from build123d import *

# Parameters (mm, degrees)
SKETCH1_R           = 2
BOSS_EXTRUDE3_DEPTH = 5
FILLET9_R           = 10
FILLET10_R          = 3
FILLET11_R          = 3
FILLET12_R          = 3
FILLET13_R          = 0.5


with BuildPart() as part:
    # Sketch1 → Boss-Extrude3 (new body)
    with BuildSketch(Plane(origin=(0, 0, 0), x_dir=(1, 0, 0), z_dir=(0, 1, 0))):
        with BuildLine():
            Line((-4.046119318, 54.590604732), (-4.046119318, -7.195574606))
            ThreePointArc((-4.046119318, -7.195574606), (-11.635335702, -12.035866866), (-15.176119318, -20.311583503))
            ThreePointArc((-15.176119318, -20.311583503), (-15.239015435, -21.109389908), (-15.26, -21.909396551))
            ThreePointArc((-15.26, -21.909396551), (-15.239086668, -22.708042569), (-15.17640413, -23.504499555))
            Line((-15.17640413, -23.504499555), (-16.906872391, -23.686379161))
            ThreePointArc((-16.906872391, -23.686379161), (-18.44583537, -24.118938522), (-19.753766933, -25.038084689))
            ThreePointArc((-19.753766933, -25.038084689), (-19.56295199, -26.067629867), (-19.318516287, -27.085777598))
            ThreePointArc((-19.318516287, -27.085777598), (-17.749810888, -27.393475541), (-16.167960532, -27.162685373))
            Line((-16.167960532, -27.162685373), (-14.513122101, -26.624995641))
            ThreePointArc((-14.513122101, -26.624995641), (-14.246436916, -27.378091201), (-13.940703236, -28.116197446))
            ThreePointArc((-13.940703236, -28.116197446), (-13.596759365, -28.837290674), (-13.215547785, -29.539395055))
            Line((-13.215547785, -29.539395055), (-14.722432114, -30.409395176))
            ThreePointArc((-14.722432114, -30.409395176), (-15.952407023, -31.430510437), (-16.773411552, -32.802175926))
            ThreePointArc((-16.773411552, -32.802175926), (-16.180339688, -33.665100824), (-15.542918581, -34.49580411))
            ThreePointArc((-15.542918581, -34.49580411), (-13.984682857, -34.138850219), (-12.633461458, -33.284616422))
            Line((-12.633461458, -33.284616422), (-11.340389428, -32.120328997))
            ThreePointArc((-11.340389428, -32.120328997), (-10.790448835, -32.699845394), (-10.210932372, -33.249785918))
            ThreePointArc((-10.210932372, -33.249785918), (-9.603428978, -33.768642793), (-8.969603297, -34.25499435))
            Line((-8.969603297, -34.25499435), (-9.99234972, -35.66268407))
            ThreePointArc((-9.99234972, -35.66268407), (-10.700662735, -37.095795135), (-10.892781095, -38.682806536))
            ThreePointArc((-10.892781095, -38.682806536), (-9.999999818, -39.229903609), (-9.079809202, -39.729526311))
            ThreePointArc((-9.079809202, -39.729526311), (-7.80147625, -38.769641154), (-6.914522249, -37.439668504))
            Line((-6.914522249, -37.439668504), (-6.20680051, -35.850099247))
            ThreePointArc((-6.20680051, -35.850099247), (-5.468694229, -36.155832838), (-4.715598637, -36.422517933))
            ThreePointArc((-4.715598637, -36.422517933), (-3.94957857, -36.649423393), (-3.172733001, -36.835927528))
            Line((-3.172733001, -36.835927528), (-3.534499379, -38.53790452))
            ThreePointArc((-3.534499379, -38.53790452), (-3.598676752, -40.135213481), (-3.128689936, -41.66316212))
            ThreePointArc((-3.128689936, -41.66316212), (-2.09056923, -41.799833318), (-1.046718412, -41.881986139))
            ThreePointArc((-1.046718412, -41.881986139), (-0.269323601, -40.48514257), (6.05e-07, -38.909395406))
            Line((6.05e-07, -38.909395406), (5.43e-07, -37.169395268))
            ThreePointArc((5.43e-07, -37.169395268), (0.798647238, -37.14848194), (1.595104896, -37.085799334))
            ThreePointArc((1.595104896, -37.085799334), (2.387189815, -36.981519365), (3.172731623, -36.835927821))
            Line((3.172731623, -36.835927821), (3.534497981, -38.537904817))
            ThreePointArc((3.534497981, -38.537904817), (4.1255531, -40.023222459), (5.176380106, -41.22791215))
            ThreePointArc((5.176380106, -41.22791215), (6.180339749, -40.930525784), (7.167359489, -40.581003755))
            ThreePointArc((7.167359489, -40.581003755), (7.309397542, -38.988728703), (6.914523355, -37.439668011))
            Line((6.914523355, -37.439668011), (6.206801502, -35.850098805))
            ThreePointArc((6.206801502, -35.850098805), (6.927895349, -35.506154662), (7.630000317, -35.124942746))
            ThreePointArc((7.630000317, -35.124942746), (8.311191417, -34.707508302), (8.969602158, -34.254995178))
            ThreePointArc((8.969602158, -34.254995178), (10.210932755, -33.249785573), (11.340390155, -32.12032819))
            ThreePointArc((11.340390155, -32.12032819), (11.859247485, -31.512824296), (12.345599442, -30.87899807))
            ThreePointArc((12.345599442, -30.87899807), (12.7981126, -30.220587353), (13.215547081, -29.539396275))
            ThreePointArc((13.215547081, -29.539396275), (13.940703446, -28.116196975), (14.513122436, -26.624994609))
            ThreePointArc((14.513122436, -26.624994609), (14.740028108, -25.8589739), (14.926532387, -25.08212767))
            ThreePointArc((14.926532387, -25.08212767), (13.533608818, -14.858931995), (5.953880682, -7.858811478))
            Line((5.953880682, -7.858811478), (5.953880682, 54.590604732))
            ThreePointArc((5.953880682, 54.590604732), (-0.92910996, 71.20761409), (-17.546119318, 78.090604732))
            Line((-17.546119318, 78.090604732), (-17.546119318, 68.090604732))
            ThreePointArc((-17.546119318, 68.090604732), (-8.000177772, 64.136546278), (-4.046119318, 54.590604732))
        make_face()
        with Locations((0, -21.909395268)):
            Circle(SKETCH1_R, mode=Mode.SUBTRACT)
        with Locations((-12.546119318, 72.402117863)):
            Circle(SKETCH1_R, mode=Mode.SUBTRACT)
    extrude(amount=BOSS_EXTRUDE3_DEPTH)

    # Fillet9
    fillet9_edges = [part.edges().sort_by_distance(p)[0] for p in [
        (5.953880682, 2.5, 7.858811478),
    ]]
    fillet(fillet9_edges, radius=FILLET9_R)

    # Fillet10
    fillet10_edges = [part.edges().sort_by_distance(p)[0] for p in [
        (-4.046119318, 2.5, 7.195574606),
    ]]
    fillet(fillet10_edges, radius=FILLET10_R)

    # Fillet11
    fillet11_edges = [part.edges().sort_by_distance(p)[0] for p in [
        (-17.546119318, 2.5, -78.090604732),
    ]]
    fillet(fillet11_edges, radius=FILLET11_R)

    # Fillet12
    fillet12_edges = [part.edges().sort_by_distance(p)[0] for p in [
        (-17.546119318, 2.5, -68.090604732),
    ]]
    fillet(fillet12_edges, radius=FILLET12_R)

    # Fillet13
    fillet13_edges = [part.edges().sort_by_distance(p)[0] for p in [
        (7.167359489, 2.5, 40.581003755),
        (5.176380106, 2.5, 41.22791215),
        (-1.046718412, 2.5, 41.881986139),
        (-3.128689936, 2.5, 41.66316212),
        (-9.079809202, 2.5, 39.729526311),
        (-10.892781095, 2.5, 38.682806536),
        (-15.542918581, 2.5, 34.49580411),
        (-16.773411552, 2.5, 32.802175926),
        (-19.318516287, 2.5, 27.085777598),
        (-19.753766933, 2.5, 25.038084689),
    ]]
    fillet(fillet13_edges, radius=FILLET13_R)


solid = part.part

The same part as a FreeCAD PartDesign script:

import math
import FreeCAD as App
import Part
import Sketcher
Q = App.Units.Quantity


def edges_at(feature, points):
    """Names of the edges that pass closest to the given points."""
    edges = feature.Shape.Edges
    near = lambda p: min(range(len(edges)), key=lambda i: edges[i].distToShape(Part.Vertex(*p))[0])
    return sorted({f"Edge{near(p) + 1}" for p in points})

doc = App.newDocument("Part")
body = doc.addObject("PartDesign::Body", "Body")

sketch1 = doc.addObject("Sketcher::SketchObject", "Sketch")
body.addObject(sketch1)
sketch1.AttachmentSupport = (doc.XZ_Plane, [""])
sketch1.MapMode = "FlatFace"
sketch1.addGeometry([
    Part.LineSegment(App.Vector(-4, -54.6, 0), App.Vector(-4, 7.2, 0)),
    Part.ArcOfCircle(Part.Circle(App.Vector(0, 21.9, 0), App.Vector(0, 0, 1), 15.3), math.radians(-174), math.radians(-105)),
    Part.ArcOfCircle(Part.Circle(App.Vector(0, 21.9, 0), App.Vector(0, 0, 1), 15.3), math.radians(180), math.radians(186.01)),
    Part.ArcOfCircle(Part.Circle(App.Vector(0, 21.9, 0), App.Vector(0, 0, 1), 15.3), math.radians(174), math.radians(180)),
    Part.LineSegment(App.Vector(-15.2, 23.5, 0), App.Vector(-16.9, 23.7, 0)),
    Part.ArcOfCircle(Part.Circle(App.Vector(-16.4, 28.4, 0), App.Vector(0, 0, 1), 4.7), math.radians(-135), math.radians(-96)),
    Part.ArcOfCircle(Part.Circle(App.Vector(0, 21.9, 0), App.Vector(0, 0, 1), 20), math.radians(165), math.radians(171)),
    Part.ArcOfCircle(Part.Circle(App.Vector(-17.6, 22.7, 0), App.Vector(0, 0, 1), 4.7), math.radians(72), math.radians(111)),
    Part.LineSegment(App.Vector(-16.2, 27.2, 0), App.Vector(-14.5, 26.6, 0)),
    Part.ArcOfCircle(Part.Circle(App.Vector(0, 21.9, 0), App.Vector(0, 0, 1), 15.3), math.radians(156), math.radians(162)),
    Part.ArcOfCircle(Part.Circle(App.Vector(0, 21.9, 0), App.Vector(0, 0, 1), 15.3), math.radians(150), math.radians(156)),
    Part.LineSegment(App.Vector(-13.2, 29.5, 0), App.Vector(-14.7, 30.4, 0)),
    Part.ArcOfCircle(Part.Circle(App.Vector(-12.4, 34.5, 0), App.Vector(0, 0, 1), 4.7), math.radians(-159), math.radians(-120)),
    Part.ArcOfCircle(Part.Circle(App.Vector(0, 21.9, 0), App.Vector(0, 0, 1), 20), math.radians(141), math.radians(147)),
    Part.ArcOfCircle(Part.Circle(App.Vector(-15.8, 29.8, 0), App.Vector(0, 0, 1), 4.7), math.radians(48), math.radians(87)),
    Part.LineSegment(App.Vector(-12.6, 33.3, 0), App.Vector(-11.3, 32.1, 0)),
    Part.ArcOfCircle(Part.Circle(App.Vector(0, 21.9, 0), App.Vector(0, 0, 1), 15.3), math.radians(132), math.radians(138)),
    Part.ArcOfCircle(Part.Circle(App.Vector(0, 21.9, 0), App.Vector(0, 0, 1), 15.3), math.radians(126), math.radians(132)),
    Part.LineSegment(App.Vector(-9, 34.3, 0), App.Vector(-10, 35.7, 0)),
    Part.ArcOfCircle(Part.Circle(App.Vector(-6.2, 38.5, 0), App.Vector(0, 0, 1), 4.7), math.radians(177), math.radians(216)),
    Part.ArcOfCircle(Part.Circle(App.Vector(0, 21.9, 0), App.Vector(0, 0, 1), 20), math.radians(117), math.radians(123)),
    Part.ArcOfCircle(Part.Circle(App.Vector(-11.2, 35.5, 0), App.Vector(0, 0, 1), 4.7), math.radians(24), math.radians(63)),
    Part.LineSegment(App.Vector(-6.9, 37.4, 0), App.Vector(-6.2, 35.9, 0)),
    Part.ArcOfCircle(Part.Circle(App.Vector(0, 21.9, 0), App.Vector(0, 0, 1), 15.3), math.radians(108), math.radians(114)),
    Part.ArcOfCircle(Part.Circle(App.Vector(0, 21.9, 0), App.Vector(0, 0, 1), 15.3), math.radians(102), math.radians(108)),
    Part.LineSegment(App.Vector(-3.2, 36.8, 0), App.Vector(-3.5, 38.5, 0)),
    Part.ArcOfCircle(Part.Circle(App.Vector(1.1, 39.5, 0), App.Vector(0, 0, 1), 4.7), math.radians(153), math.radians(192)),
    Part.ArcOfCircle(Part.Circle(App.Vector(0, 21.9, 0), App.Vector(0, 0, 1), 20), math.radians(93), math.radians(99)),
    Part.ArcOfCircle(Part.Circle(App.Vector(-4.7, 38.9, 0), App.Vector(0, 0, 1), 4.7), math.radians(0), math.radians(39)),
    Part.LineSegment(App.Vector(0, 38.9, 0), App.Vector(0, 37.2, 0)),
    Part.ArcOfCircle(Part.Circle(App.Vector(0, 21.9, 0), App.Vector(0, 0, 1), 15.3), math.radians(84), math.radians(90)),
    Part.ArcOfCircle(Part.Circle(App.Vector(0, 21.9, 0), App.Vector(0, 0, 1), 15.3), math.radians(78), math.radians(84)),
    Part.LineSegment(App.Vector(3.2, 36.8, 0), App.Vector(3.5, 38.5, 0)),
    Part.ArcOfCircle(Part.Circle(App.Vector(8.2, 37.6, 0), App.Vector(0, 0, 1), 4.7), math.radians(129), math.radians(168)),
    Part.ArcOfCircle(Part.Circle(App.Vector(0, 21.9, 0), App.Vector(0, 0, 1), 20), math.radians(69), math.radians(75)),
    Part.ArcOfCircle(Part.Circle(App.Vector(2.6, 39.4, 0), App.Vector(0, 0, 1), 4.7), math.radians(-24), math.radians(15)),
    Part.LineSegment(App.Vector(6.9, 37.4, 0), App.Vector(6.2, 35.9, 0)),
    Part.ArcOfCircle(Part.Circle(App.Vector(0, 21.9, 0), App.Vector(0, 0, 1), 15.3), math.radians(60), math.radians(66)),
    Part.ArcOfCircle(Part.Circle(App.Vector(0, 21.9, 0), App.Vector(0, 0, 1), 15.3), math.radians(54), math.radians(60)),
    Part.ArcOfCircle(Part.Circle(App.Vector(0, 21.9, 0), App.Vector(0, 0, 1), 15.3), math.radians(42), math.radians(54)),
    Part.ArcOfCircle(Part.Circle(App.Vector(0, 21.9, 0), App.Vector(0, 0, 1), 15.3), math.radians(36), math.radians(42)),
    Part.ArcOfCircle(Part.Circle(App.Vector(0, 21.9, 0), App.Vector(0, 0, 1), 15.3), math.radians(30), math.radians(36)),
    Part.ArcOfCircle(Part.Circle(App.Vector(0, 21.9, 0), App.Vector(0, 0, 1), 15.3), math.radians(18), math.radians(30)),
    Part.ArcOfCircle(Part.Circle(App.Vector(0, 21.9, 0), App.Vector(0, 0, 1), 15.3), math.radians(12), math.radians(18)),
    Part.ArcOfCircle(Part.Circle(App.Vector(0, 21.9, 0), App.Vector(0, 0, 1), 15.3), math.radians(-67), math.radians(12)),
    Part.LineSegment(App.Vector(6, 7.9, 0), App.Vector(6, -54.6, 0)),
    Part.ArcOfCircle(Part.Circle(App.Vector(-17.5, -54.6, 0), App.Vector(0, 0, 1), 23.5), math.radians(-90), math.radians(0)),
    Part.LineSegment(App.Vector(-17.5, -78.1, 0), App.Vector(-17.5, -68.1, 0)),
    Part.ArcOfCircle(Part.Circle(App.Vector(-17.5, -54.6, 0), App.Vector(0, 0, 1), 13.5), math.radians(-90), math.radians(0)),
    Part.Circle(App.Vector(0, 21.9, 0), App.Vector(0, 0, 1), 2),
    Part.Circle(App.Vector(-12.5, -72.4, 0), App.Vector(0, 0, 1), 2),
], False)
sketch1.addConstraint([
    Sketcher.Constraint("Coincident", 0, 2, 1, 2),
    Sketcher.Constraint("Tangent", 1, 1, 2, 2),
    Sketcher.Constraint("Tangent", 2, 1, 3, 2),
    Sketcher.Constraint("Coincident", 3, 1, 4, 1),
    Sketcher.Constraint("Tangent", 4, 2, 5, 2),
    Sketcher.Constraint("Coincident", 5, 1, 6, 2),
    Sketcher.Constraint("Coincident", 6, 1, 7, 2),
    Sketcher.Constraint("Tangent", 7, 1, 8, 1),
    Sketcher.Constraint("Coincident", 8, 2, 9, 2),
    Sketcher.Constraint("Tangent", 9, 1, 10, 2),
    Sketcher.Constraint("Coincident", 10, 1, 11, 1),
    Sketcher.Constraint("Tangent", 11, 2, 12, 2),
    Sketcher.Constraint("Coincident", 12, 1, 13, 2),
    Sketcher.Constraint("Coincident", 13, 1, 14, 2),
    Sketcher.Constraint("Tangent", 14, 1, 15, 1),
    Sketcher.Constraint("Coincident", 15, 2, 16, 2),
    Sketcher.Constraint("Tangent", 16, 1, 17, 2),
    Sketcher.Constraint("Coincident", 17, 1, 18, 1),
    Sketcher.Constraint("Tangent", 18, 2, 19, 2),
    Sketcher.Constraint("Coincident", 19, 1, 20, 2),
    Sketcher.Constraint("Coincident", 20, 1, 21, 2),
    Sketcher.Constraint("Tangent", 21, 1, 22, 1),
    Sketcher.Constraint("Coincident", 22, 2, 23, 2),
    Sketcher.Constraint("Tangent", 23, 1, 24, 2),
    Sketcher.Constraint("Coincident", 24, 1, 25, 1),
    Sketcher.Constraint("Tangent", 25, 2, 26, 2),
    Sketcher.Constraint("Coincident", 26, 1, 27, 2),
    Sketcher.Constraint("Coincident", 27, 1, 28, 2),
    Sketcher.Constraint("Tangent", 28, 1, 29, 1),
    Sketcher.Constraint("Coincident", 29, 2, 30, 2),
    Sketcher.Constraint("Tangent", 30, 1, 31, 2),
    Sketcher.Constraint("Coincident", 31, 1, 32, 1),
    Sketcher.Constraint("Tangent", 32, 2, 33, 2),
    Sketcher.Constraint("Coincident", 33, 1, 34, 2),
    Sketcher.Constraint("Coincident", 34, 1, 35, 2),
    Sketcher.Constraint("Tangent", 35, 1, 36, 1),
    Sketcher.Constraint("Coincident", 36, 2, 37, 2),
    Sketcher.Constraint("Tangent", 37, 1, 38, 2),
    Sketcher.Constraint("Tangent", 38, 1, 39, 2),
    Sketcher.Constraint("Tangent", 39, 1, 40, 2),
    Sketcher.Constraint("Tangent", 40, 1, 41, 2),
    Sketcher.Constraint("Tangent", 41, 1, 42, 2),
    Sketcher.Constraint("Tangent", 42, 1, 43, 2),
    Sketcher.Constraint("Tangent", 43, 1, 44, 2),
    Sketcher.Constraint("Coincident", 44, 1, 45, 1),
    Sketcher.Constraint("Tangent", 45, 2, 46, 2),
    Sketcher.Constraint("Coincident", 46, 1, 47, 1),
    Sketcher.Constraint("Coincident", 47, 2, 48, 1),
    Sketcher.Constraint("Tangent", 48, 2, 0, 1),
    Sketcher.Constraint("Vertical", 0),
    Sketcher.Constraint("Vertical", 29),
    Sketcher.Constraint("Vertical", 45),
    Sketcher.Constraint("Vertical", 47),
    Sketcher.Constraint("Coincident", 3, 3, 1, 3),
    Sketcher.Constraint("Coincident", 6, 3, 1, 3),
    Sketcher.Constraint("Coincident", 9, 3, 1, 3),
    Sketcher.Constraint("Coincident", 13, 3, 1, 3),
    Sketcher.Constraint("Coincident", 16, 3, 1, 3),
    Sketcher.Constraint("Coincident", 20, 3, 1, 3),
    Sketcher.Constraint("Coincident", 23, 3, 1, 3),
    Sketcher.Constraint("Coincident", 27, 3, 1, 3),
    Sketcher.Constraint("Coincident", 30, 3, 1, 3),
    Sketcher.Constraint("Coincident", 34, 3, 1, 3),
    Sketcher.Constraint("Coincident", 37, 3, 1, 3),
    Sketcher.Constraint("Coincident", 39, 3, 1, 3),
    Sketcher.Constraint("Coincident", 41, 3, 1, 3),
    Sketcher.Constraint("Coincident", 43, 3, 1, 3),
    Sketcher.Constraint("Coincident", 48, 3, 46, 3),
    Sketcher.Constraint("Coincident", 49, 3, 1, 3),
    Sketcher.Constraint("Equal", 5, 7),
    Sketcher.Constraint("Equal", 3, 9),
    Sketcher.Constraint("Equal", 9, 10),
    Sketcher.Constraint("Equal", 7, 12),
    Sketcher.Constraint("Equal", 6, 13),
    Sketcher.Constraint("Equal", 12, 14),
    Sketcher.Constraint("Equal", 10, 16),
    Sketcher.Constraint("Equal", 16, 17),
    Sketcher.Constraint("Equal", 14, 19),
    Sketcher.Constraint("Equal", 13, 20),
    Sketcher.Constraint("Equal", 19, 21),
    Sketcher.Constraint("Equal", 17, 23),
    Sketcher.Constraint("Equal", 23, 24),
    Sketcher.Constraint("Equal", 21, 26),
    Sketcher.Constraint("Equal", 20, 27),
    Sketcher.Constraint("Equal", 26, 28),
    Sketcher.Constraint("Equal", 24, 30),
    Sketcher.Constraint("Equal", 30, 31),
    Sketcher.Constraint("Equal", 28, 33),
    Sketcher.Constraint("Equal", 27, 34),
    Sketcher.Constraint("Equal", 33, 35),
    Sketcher.Constraint("Equal", 31, 37),
    Sketcher.Constraint("Equal", 43, 44),
    Sketcher.Constraint("Equal", 49, 50),
    Sketcher.Constraint("Symmetric", 24, 1, 31, 1, -2),
    Sketcher.Constraint("Symmetric", 25, 2, 32, 2, -2),
    Sketcher.Constraint("Symmetric", 21, 1, 35, 1, -2),
    Sketcher.Constraint("PointOnObject", 28, 1, -2),
    Sketcher.Constraint("Horizontal", 49, 3, 2, 1),
    Sketcher.Constraint("Horizontal", 22, 2, 36, 2),
    Sketcher.Constraint("Horizontal", 17, 1, 38, 1),
    Sketcher.Constraint("Horizontal", 15, 2, 39, 1),
    Sketcher.Constraint("Horizontal", 10, 1, 41, 1),
    Sketcher.Constraint("Horizontal", 8, 2, 42, 1),
    Sketcher.Constraint("Vertical", 48, 3, 46, 1),
    Sketcher.Constraint("Equal", 4, 8),
    Sketcher.Constraint("Equal", 8, 11),
    Sketcher.Constraint("Equal", 11, 15),
    Sketcher.Constraint("Equal", 15, 18),
    Sketcher.Constraint("Equal", 18, 22),
    Sketcher.Constraint("Equal", 22, 25),
    Sketcher.Constraint("Diameter", 49, 4.0),
    Sketcher.Constraint("Radius", 6, 20.0),
    Sketcher.Constraint("Radius", 46, 23.5),
    Sketcher.Constraint("Radius", 48, 13.5),
    Sketcher.Constraint("Angle", 4, Q("173.999998 deg")),
    Sketcher.Constraint("Angle", 8, Q("-18.000004 deg")),
    Sketcher.Constraint("Angle", 11, Q("149.999999 deg")),
    Sketcher.Constraint("Angle", 15, Q("-42.000003 deg")),
    Sketcher.Constraint("Angle", 18, Q("125.999999 deg")),
    Sketcher.Constraint("Angle", 22, Q("-66.000003 deg")),
    Sketcher.Constraint("Angle", 25, Q("102 deg")),
    Sketcher.Constraint("Radius", 1, 15.26),
    Sketcher.Constraint("DistanceY", 29, 2, 29, 1, 1.74),
    Sketcher.Constraint("Distance", 4, 1.74),
    Sketcher.Constraint("DistanceX", -1, 1, 37, 1, 7.63),
    Sketcher.Constraint("Radius", 5, 4.744308),
    Sketcher.Constraint("DistanceY", -1, 1, 40, 1, 30.878998),
    Sketcher.Constraint("DistanceY", 0, 1, 0, 2, 61.786179),
    Sketcher.Constraint("DistanceY", -1, 1, 26, 3, 39.524302),
    Sketcher.Constraint("DistanceY", -1, 1, 3, 1, 23.5045),
    Sketcher.Constraint("DistanceX", 22, 2, -1, 1, 6.206801),
    Sketcher.Constraint("DistanceY", -1, 1, 22, 2, 35.850099),
    Sketcher.Constraint("DistanceX", 23, 1, -1, 1, 4.715599),
    Sketcher.Constraint("DistanceY", -1, 1, 30, 1, 37.085799),
    Sketcher.Constraint("DistanceY", 45, 2, 45, 1, 62.449416),
    Sketcher.Constraint("DistanceY", -1, 1, 7, 3, 22.65058),
    Sketcher.Constraint("DistanceY", -1, 1, 14, 3, 29.758908),
    Sketcher.Constraint("DistanceY", -1, 1, 19, 3, 38.451318),
    Sketcher.Constraint("DistanceX", 50, 3, -1, 1, 12.546119),
    Sketcher.Constraint("DistanceX", 1, 1, -1, 1, 15.176119),
    Sketcher.Constraint("DistanceX", 12, 1, -1, 1, 16.773412),
    Sketcher.Constraint("DistanceY", 50, 3, -1, 1, 72.402118),
    Sketcher.Constraint("DistanceX", 9, 1, -1, 1, 13.940703),
    Sketcher.Constraint("DistanceX", 16, 1, -1, 1, 10.210932),
    Sketcher.Constraint("DistanceX", -1, 1, 43, 1, 14.926532),
])
pad1 = doc.addObject("PartDesign::Pad", "Pad")
body.addObject(pad1)
pad1.Profile = sketch1
pad1.Length = 5
pad1.Reversed = True
doc.recompute()

fillet = doc.addObject("PartDesign::Fillet", "Fillet")
body.addObject(fillet)
fillet.Base = (pad1, edges_at(pad1, [(5.954, 2.5, 7.859)]))
fillet.Radius = 10
doc.recompute()

fillet2 = doc.addObject("PartDesign::Fillet", "Fillet001")
body.addObject(fillet2)
fillet2.Base = (fillet, edges_at(fillet, [(-4.046, 2.5, 7.196)]))
fillet2.Radius = 3
doc.recompute()

fillet3 = doc.addObject("PartDesign::Fillet", "Fillet002")
body.addObject(fillet3)
fillet3.Base = (fillet2, edges_at(fillet2, [(-17.546, 2.5, -78.091)]))
fillet3.Radius = 3
doc.recompute()

fillet4 = doc.addObject("PartDesign::Fillet", "Fillet003")
body.addObject(fillet4)
fillet4.Base = (fillet3, edges_at(fillet3, [(-17.546, 2.5, -68.091)]))
fillet4.Radius = 3
doc.recompute()

fillet5 = doc.addObject("PartDesign::Fillet", "Fillet004")
body.addObject(fillet5)
fillet5.Base = (fillet4, edges_at(fillet4, [
    (7.167, 2.5, 40.581),
    (5.176, 2.5, 41.228),
    (-1.047, 2.5, 41.882),
    (-3.129, 2.5, 41.663),
    (-9.08, 2.5, 39.73),
    (-10.893, 2.5, 38.683),
    (-15.543, 2.5, 34.496),
    (-16.773, 2.5, 32.802),
    (-19.319, 2.5, 27.086),
    (-19.754, 2.5, 25.038),
]))
fillet5.Radius = 0.5

doc.recompute()
